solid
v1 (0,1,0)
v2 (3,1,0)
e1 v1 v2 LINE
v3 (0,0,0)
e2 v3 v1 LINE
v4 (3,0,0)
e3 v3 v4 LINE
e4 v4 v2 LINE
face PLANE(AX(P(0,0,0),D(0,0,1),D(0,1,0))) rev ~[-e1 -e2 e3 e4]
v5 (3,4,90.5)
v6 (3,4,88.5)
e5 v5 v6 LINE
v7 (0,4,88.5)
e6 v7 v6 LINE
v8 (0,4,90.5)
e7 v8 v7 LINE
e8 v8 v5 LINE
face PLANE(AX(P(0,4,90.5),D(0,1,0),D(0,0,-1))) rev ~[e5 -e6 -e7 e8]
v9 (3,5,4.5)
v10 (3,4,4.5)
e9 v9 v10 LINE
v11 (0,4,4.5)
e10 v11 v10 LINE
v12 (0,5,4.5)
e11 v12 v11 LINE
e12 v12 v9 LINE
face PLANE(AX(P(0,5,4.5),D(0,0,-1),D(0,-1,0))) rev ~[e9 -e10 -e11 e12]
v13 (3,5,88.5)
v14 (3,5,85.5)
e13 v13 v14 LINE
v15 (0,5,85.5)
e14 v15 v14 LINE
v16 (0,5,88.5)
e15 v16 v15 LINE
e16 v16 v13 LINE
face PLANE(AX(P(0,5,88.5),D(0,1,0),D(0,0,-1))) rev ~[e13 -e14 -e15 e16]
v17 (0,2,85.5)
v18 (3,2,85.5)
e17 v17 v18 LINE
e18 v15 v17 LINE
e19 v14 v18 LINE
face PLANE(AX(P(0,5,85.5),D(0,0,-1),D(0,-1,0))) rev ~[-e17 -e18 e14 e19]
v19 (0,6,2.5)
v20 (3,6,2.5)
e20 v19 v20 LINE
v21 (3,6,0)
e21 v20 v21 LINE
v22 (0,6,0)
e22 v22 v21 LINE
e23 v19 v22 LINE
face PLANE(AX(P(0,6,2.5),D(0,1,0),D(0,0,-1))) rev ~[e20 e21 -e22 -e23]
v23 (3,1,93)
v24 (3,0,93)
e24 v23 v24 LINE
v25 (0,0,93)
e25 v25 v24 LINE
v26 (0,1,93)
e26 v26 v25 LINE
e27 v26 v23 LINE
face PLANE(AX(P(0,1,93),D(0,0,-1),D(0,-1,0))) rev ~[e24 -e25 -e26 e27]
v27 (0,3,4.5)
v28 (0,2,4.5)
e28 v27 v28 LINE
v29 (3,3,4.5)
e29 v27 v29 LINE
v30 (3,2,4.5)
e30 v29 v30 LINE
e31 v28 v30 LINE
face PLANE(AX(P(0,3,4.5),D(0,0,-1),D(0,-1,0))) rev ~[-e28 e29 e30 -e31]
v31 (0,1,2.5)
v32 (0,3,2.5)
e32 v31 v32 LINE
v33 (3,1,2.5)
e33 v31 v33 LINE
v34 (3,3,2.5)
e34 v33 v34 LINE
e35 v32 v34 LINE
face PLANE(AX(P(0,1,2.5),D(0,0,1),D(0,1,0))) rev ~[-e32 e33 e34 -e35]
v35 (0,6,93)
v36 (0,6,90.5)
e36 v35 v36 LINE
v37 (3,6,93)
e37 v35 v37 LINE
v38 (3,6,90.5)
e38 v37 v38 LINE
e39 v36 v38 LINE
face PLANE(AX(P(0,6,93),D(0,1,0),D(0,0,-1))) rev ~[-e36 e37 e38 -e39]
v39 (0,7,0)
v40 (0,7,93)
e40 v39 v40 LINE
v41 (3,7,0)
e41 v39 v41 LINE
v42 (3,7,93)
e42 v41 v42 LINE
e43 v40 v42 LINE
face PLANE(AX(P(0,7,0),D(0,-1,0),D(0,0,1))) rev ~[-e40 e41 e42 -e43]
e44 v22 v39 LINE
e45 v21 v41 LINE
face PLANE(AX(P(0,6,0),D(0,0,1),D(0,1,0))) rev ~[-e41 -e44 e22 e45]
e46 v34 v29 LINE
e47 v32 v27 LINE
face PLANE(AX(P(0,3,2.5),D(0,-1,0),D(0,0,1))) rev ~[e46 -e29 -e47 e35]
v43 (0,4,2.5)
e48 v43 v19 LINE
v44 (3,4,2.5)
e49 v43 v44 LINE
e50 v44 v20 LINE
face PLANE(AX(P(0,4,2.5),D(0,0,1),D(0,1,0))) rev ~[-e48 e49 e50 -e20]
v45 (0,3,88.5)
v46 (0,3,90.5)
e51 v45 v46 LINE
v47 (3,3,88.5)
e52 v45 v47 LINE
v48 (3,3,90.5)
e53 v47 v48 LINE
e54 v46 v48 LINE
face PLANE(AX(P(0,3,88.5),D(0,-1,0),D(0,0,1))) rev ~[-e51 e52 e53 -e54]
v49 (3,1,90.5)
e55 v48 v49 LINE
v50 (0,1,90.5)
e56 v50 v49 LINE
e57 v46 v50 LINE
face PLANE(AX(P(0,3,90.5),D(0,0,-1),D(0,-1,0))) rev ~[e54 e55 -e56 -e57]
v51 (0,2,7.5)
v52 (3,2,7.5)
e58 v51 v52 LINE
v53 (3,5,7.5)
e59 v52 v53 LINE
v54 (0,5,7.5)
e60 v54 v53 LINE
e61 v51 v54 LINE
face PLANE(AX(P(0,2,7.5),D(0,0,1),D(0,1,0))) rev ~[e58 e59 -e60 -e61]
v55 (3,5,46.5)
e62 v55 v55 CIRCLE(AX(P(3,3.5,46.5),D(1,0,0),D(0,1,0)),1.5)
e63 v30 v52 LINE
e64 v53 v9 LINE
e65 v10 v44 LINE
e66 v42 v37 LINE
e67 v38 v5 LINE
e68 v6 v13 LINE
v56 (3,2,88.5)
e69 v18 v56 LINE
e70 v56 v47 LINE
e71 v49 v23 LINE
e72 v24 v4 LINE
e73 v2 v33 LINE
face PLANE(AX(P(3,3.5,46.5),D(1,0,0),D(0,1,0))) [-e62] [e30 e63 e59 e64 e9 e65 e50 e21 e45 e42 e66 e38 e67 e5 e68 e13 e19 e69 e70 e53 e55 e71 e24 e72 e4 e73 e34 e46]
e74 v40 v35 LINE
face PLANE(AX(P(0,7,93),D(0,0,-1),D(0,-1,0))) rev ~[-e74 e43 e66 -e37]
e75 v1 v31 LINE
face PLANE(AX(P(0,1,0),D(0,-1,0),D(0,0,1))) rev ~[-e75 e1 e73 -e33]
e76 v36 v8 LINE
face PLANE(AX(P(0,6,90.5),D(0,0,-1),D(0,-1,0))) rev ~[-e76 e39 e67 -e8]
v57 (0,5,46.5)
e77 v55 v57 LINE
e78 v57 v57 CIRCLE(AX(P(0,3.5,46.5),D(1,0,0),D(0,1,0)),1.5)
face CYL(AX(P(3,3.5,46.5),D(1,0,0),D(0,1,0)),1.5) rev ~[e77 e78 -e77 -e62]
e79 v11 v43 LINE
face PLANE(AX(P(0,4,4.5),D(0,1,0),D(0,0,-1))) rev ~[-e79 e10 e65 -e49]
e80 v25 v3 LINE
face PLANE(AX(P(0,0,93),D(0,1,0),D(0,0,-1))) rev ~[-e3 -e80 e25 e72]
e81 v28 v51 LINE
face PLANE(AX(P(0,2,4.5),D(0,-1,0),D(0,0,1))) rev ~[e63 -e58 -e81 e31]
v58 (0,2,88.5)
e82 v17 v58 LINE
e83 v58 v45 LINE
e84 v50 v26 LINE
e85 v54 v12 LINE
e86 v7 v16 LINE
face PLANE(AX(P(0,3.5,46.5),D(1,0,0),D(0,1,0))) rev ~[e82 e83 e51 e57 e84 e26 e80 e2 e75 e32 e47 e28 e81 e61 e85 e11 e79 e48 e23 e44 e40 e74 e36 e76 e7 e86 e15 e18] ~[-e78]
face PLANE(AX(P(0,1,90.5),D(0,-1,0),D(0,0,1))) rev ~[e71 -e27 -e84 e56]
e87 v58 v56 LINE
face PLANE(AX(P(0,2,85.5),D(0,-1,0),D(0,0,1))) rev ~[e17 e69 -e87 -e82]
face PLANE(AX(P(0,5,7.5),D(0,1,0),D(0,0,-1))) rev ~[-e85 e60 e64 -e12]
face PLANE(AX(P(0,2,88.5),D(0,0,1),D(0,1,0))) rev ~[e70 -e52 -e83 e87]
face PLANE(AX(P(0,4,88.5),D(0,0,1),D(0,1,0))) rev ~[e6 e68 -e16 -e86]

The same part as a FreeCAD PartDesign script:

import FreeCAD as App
import Part
import Sketcher
from FreeCAD import Vector


def add_polygon(sketch, points):
    """Adds a closed chain of lines whose ends are joined by coincident constraints."""
    first, n = sketch.GeometryCount, len(points)
    for a, b in zip(points, points[1:] + points[:1]):
        sketch.addGeometry(Part.LineSegment(App.Vector(*a, 0), App.Vector(*b, 0)), False)
    for i in range(n):
        sketch.addConstraint(Sketcher.Constraint("Coincident", first + i, 2, first + (i + 1) % n, 1))

doc = App.newDocument("Part")
body = doc.addObject("PartDesign::Body", "Body")

# Sketch on YZ plane
sketch1 = doc.addObject("Sketcher::SketchObject", "Sketch")
body.addObject(sketch1)
sketch1.AttachmentSupport = (doc.YZ_Plane, [""])
sketch1.MapMode = "FlatFace"
add_polygon(sketch1, [(0, 93), (0, 0), (1, 0), (1, 2.5), (3, 2.5), (3, 4.5), (2, 4.5), (2, 7.5), (5, 7.5), (5, 4.5), (4, 4.5), (4, 2.5), (6, 2.5), (6, 0), (7, 0), (7, 93), (6, 93), (6, 90.5), (4, 90.5), (4, 88.5), (5, 88.5), (5, 85.5), (2, 85.5), (2, 88.5), (3, 88.5), (3, 90.5), (1, 90.5), (1, 93)])  # lines 0-27
sketch1.addConstraint(Sketcher.Constraint("Vertical", 0))
sketch1.addConstraint(Sketcher.Constraint("Horizontal", 1))
sketch1.addConstraint(Sketcher.Constraint("Vertical", 2))
sketch1.addConstraint(Sketcher.Constraint("Horizontal", 3))
sketch1.addConstraint(Sketcher.Constraint("Vertical", 4))
sketch1.addConstraint(Sketcher.Constraint("Horizontal", 5))
sketch1.addConstraint(Sketcher.Constraint("Vertical", 6))
sketch1.addConstraint(Sketcher.Constraint("Horizontal", 7))
sketch1.addConstraint(Sketcher.Constraint("Vertical", 8))
sketch1.addConstraint(Sketcher.Constraint("Horizontal", 9))
sketch1.addConstraint(Sketcher.Constraint("Vertical", 10))
sketch1.addConstraint(Sketcher.Constraint("Horizontal", 11))
sketch1.addConstraint(Sketcher.Constraint("Vertical", 12))
sketch1.addConstraint(Sketcher.Constraint("Horizontal", 13))
sketch1.addConstraint(Sketcher.Constraint("Vertical", 14))
sketch1.addConstraint(Sketcher.Constraint("Horizontal", 15))
sketch1.addConstraint(Sketcher.Constraint("Vertical", 16))
sketch1.addConstraint(Sketcher.Constraint("Horizontal", 17))
sketch1.addConstraint(Sketcher.Constraint("Vertical", 18))
sketch1.addConstraint(Sketcher.Constraint("Horizontal", 19))
sketch1.addConstraint(Sketcher.Constraint("Vertical", 20))
sketch1.addConstraint(Sketcher.Constraint("Horizontal", 21))
sketch1.addConstraint(Sketcher.Constraint("Vertical", 22))
sketch1.addConstraint(Sketcher.Constraint("Horizontal", 23))
sketch1.addConstraint(Sketcher.Constraint("Vertical", 24))
sketch1.addConstraint(Sketcher.Constraint("Horizontal", 25))
sketch1.addConstraint(Sketcher.Constraint("Vertical", 26))
sketch1.addConstraint(Sketcher.Constraint("Horizontal", 27))
sketch1.addConstraint(Sketcher.Constraint("Coincident", 0, 2, -1, 1))
sketch1.addConstraint(Sketcher.Constraint("PointOnObject", 12, 2, -1))
sketch1.addConstraint(Sketcher.Constraint("Horizontal", 5, 2, 8, 2))
sketch1.addConstraint(Sketcher.Constraint("Horizontal", 3, 2, 10, 2))
sketch1.addConstraint(Sketcher.Constraint("Horizontal", 19, 2, 22, 2))
sketch1.addConstraint(Sketcher.Constraint("Horizontal", 17, 2, 24, 2))
sketch1.addConstraint(Sketcher.Constraint("Horizontal", 15, 2, 26, 2))
sketch1.addConstraint(Sketcher.Constraint("Vertical", 12, 2, 15, 2))
sketch1.addConstraint(Sketcher.Constraint("Vertical", 10, 2, 17, 2))
sketch1.addConstraint(Sketcher.Constraint("Vertical", 8, 2, 19, 2))
sketch1.addConstraint(Sketcher.Constraint("Vertical", 6, 2, 21, 2))
sketch1.addConstraint(Sketcher.Constraint("Vertical", 4, 2, 23, 2))
sketch1.addConstraint(Sketcher.Constraint("Vertical", 2, 2, 25, 2))
sketch1.addConstraint(Sketcher.Constraint("Equal", 1, 5))
sketch1.addConstraint(Sketcher.Constraint("Equal", 5, 9))
sketch1.addConstraint(Sketcher.Constraint("Equal", 3, 11))
sketch1.addConstraint(Sketcher.Constraint("Equal", 9, 13))
sketch1.addConstraint(Sketcher.Constraint("Equal", 25, 4))
sketch1.addConstraint(Sketcher.Constraint("Equal", 21, 6))
sketch1.addConstraint(Sketcher.Constraint("Equal", 12, 16))
sketch1.addConstraint(Sketcher.Constraint("Equal", 10, 18))
sketch1.addConstraint(Sketcher.Constraint("Equal", 8, 20))
sketch1.addConstraint(Sketcher.Constraint("DistanceX", 1, 1, 1, 2, 1.0))
sketch1.addConstraint(Sketcher.Constraint("DistanceX", 3, 1, 3, 2, 2.0))
sketch1.addConstraint(Sketcher.Constraint("DistanceX", 7, 1, 7, 2, 3.0))
sketch1.addConstraint(Sketcher.Constraint("DistanceY", 0, 2, 0, 1, 93.0))
sketch1.addConstraint(Sketcher.Constraint("DistanceY", 2, 1, 2, 2, 2.5))
pad1 = doc.addObject("PartDesign::Pad", "Pad")
body.addObject(pad1)
pad1.Profile = sketch1
pad1.Length = 3

# Sketch on YZ plane
sketch2 = doc.addObject("Sketcher::SketchObject", "Sketch001")
body.addObject(sketch2)
sketch2.AttachmentSupport = (doc.YZ_Plane, [""])
sketch2.MapMode = "FlatFace"
sketch2.AttachmentOffset = App.Placement(Vector(0, 0, 3), App.Rotation())
sketch2.addGeometry(Part.Circle(Vector(3.5, 46.5, 0), Vector(0, 0, 1), 1.5), False)
sketch2.addConstraint(Sketcher.Constraint("Diameter", 0, 3.0))
sketch2.addConstraint(Sketcher.Constraint("DistanceX", -1, 1, 0, 3, 3.5))
sketch2.addConstraint(Sketcher.Constraint("DistanceY", -1, 1, 0, 3, 46.5))
pocket1 = doc.addObject("PartDesign::Pocket", "Pocket")
body.addObject(pocket1)
pocket1.Profile = sketch2
pocket1.Type = "ThroughAll"

doc.recompute()
